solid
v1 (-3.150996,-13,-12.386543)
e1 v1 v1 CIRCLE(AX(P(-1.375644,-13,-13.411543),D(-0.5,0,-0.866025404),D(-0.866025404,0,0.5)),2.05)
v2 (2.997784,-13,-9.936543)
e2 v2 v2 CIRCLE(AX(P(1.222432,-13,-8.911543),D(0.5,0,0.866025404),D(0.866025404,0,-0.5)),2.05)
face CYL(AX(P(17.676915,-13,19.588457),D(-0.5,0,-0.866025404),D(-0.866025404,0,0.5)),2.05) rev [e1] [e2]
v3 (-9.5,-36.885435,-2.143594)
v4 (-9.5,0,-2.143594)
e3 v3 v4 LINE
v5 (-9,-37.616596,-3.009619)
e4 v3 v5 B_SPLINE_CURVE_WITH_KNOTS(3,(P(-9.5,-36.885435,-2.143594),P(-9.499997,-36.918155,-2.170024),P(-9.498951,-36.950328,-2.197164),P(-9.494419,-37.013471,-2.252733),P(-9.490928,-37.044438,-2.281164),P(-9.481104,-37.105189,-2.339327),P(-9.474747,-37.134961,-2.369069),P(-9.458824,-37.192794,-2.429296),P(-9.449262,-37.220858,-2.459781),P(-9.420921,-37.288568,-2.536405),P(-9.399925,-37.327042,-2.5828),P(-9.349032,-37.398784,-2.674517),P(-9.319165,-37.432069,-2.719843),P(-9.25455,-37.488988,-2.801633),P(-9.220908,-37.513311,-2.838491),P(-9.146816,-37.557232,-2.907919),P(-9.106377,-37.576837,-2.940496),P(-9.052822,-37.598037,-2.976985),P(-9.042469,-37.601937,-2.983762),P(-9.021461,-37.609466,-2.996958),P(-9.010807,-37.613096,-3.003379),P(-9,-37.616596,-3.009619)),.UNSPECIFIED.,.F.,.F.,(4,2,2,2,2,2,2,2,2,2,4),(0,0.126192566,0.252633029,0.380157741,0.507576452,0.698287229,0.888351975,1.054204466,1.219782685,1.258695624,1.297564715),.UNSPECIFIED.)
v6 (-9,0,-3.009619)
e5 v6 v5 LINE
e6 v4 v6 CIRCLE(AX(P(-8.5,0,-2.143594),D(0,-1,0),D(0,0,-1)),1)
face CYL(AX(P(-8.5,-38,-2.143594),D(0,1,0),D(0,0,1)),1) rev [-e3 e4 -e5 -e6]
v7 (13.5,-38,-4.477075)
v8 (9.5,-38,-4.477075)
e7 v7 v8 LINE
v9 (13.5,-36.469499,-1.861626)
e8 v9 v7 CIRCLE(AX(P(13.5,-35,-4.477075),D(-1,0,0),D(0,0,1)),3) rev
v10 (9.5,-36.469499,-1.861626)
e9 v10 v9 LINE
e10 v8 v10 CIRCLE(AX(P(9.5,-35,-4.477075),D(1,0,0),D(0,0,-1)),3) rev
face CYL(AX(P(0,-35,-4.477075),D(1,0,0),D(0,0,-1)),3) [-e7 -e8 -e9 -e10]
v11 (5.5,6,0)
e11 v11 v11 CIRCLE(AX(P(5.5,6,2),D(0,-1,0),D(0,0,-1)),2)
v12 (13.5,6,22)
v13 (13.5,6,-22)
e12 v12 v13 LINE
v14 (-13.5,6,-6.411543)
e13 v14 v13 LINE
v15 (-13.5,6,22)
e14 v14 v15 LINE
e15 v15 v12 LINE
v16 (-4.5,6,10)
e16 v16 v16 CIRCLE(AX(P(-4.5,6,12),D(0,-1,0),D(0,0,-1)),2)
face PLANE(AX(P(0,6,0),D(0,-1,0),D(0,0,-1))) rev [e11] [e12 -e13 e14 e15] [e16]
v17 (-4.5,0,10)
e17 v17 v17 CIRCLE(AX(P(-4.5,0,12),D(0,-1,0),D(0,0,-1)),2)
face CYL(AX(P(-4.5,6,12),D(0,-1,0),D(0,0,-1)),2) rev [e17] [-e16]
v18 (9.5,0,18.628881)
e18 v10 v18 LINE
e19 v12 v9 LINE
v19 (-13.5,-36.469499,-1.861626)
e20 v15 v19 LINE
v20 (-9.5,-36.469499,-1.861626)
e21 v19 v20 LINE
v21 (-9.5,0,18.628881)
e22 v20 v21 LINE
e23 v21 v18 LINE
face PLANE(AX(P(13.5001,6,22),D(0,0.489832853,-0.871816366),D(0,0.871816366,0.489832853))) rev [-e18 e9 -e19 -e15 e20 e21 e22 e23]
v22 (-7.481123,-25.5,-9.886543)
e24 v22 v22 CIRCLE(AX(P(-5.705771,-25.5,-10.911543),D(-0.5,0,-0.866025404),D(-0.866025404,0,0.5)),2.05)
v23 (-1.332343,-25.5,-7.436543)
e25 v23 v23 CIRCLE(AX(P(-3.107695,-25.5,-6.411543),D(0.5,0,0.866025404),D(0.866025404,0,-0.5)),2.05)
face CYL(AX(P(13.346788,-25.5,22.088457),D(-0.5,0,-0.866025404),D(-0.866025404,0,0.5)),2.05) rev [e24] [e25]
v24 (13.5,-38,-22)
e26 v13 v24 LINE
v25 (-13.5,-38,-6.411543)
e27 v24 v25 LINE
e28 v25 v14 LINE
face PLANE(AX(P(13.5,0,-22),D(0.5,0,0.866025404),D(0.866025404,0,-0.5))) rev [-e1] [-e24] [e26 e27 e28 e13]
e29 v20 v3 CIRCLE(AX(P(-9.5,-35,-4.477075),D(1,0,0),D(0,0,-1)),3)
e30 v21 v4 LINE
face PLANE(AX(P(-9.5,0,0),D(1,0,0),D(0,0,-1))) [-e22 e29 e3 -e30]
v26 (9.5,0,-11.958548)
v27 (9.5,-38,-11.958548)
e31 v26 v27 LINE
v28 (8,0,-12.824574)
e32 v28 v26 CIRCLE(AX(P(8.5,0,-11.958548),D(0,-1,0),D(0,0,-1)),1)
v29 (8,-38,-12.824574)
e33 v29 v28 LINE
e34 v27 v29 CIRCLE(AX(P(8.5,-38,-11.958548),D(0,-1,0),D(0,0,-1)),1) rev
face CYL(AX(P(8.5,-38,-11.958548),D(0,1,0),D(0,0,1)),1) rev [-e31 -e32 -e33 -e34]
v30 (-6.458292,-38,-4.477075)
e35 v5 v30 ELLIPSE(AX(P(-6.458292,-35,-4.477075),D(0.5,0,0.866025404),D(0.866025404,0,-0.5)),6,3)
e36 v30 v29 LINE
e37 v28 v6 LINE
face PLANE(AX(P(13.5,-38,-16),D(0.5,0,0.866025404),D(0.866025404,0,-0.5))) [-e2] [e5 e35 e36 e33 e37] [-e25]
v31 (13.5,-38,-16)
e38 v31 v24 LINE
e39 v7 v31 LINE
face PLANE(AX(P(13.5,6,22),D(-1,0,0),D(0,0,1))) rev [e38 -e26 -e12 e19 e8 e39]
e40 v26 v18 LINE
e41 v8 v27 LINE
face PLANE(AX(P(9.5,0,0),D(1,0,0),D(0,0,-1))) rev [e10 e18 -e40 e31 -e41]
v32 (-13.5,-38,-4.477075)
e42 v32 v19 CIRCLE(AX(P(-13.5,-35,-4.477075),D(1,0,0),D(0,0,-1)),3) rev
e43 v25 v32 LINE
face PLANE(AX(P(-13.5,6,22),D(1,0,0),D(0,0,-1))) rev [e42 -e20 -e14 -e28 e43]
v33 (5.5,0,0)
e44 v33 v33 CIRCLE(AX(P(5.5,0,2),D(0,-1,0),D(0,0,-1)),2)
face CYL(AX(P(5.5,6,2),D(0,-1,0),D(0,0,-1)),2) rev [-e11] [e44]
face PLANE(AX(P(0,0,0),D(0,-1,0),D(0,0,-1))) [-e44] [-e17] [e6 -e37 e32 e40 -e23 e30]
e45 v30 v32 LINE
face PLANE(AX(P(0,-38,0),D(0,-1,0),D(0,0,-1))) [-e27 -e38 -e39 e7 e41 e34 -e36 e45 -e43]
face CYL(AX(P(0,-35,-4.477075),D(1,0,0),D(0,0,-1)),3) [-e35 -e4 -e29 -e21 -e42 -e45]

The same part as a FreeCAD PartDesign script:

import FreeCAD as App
import Part
import Sketcher

V = App.Vector
Q = App.Units.Quantity


def edges_at(feature, points):
    """Names of the edges that pass closest to the given points."""
    edges = feature.Shape.Edges
    near = lambda p: min(range(len(edges)), key=lambda i: edges[i].distToShape(Part.Vertex(*p))[0])
    return sorted({f"Edge{near(p) + 1}" for p in points})


def add_polygon(sketch, points):
    """Adds a closed chain of lines whose ends are joined by coincident constraints."""
    first, n = sketch.GeometryCount, len(points)
    for a, b in zip(points, points[1:] + points[:1]):
        sketch.addGeometry(Part.LineSegment(App.Vector(*a, 0), App.Vector(*b, 0)), False)
    for i in range(n):
        sketch.addConstraint(Sketcher.Constraint("Coincident", first + i, 2, first + (i + 1) % n, 1))

doc = App.newDocument("Part")
params = doc.addObject("Spreadsheet::Sheet", "Params")
for row, (alias, value) in enumerate([
    ("sketch1_width", "27 mm"),
    ("sketch1_height", "44 mm"),
    ("pad1_length", "6 mm"),
    ("sketch2_width", "27 mm"),
    ("sketch3_height", "6 mm"),
    ("pad2_length", "44 mm"),
    ("sketch4_diameter", "4 mm"),
    ("sketch5_diameter", "4.1 mm"),
    ("sketch6_width", "38 mm"),
    ("sketch7_width", "38 mm"),
    ("sketch8_width", "38 mm"),
    ("sketch9_width", "38 mm"),
    ("sketch10_width", "44 mm"),
    ("fillet_radius", "1 mm"),
    ("fillet2_radius", "3 mm"),
], start=1):
    params.set(f"A{row}", alias)
    params.set(f"B{row}", "=" + value)
    params.setAlias(f"B{row}", alias)

body = doc.addObject("PartDesign::Body", "Body")

# Sketch on XZ plane
sketch1 = doc.addObject("Sketcher::SketchObject", "Sketch")
body.addObject(sketch1)
sketch1.AttachmentSupport = (doc.XZ_Plane, [""])
sketch1.MapMode = "FlatFace"
add_polygon(sketch1, [(-14, -22), (-14, 22), (14, 22), (14, -22)])  # lines 0-3
sketch1.addConstraint([
    Sketcher.Constraint("Vertical", 0),
    Sketcher.Constraint("Horizontal", 1),
    Sketcher.Constraint("Vertical", 2),
    Sketcher.Constraint("Horizontal", 3),
    Sketcher.Constraint("Symmetric", 0, 2, 2, 2, -1, 1),
    Sketcher.Constraint("DistanceX", 1, 1, 1, 2, Q("27 mm")),
    Sketcher.Constraint("DistanceY", 0, 1, 0, 2, Q("44 mm")),
])
sketch1.setExpression("Constraints[9]", "Params.sketch1_width")
sketch1.setExpression("Constraints[10]", "Params.sketch1_height")
pad1 = doc.addObject("PartDesign::Pad", "Pad")
body.addObject(pad1)
pad1.Profile = sketch1
pad1.setExpression("Length", "Params.pad1_length")
pad1.Reversed = True

# Sketch on XZ plane
sketch2 = doc.addObject("Sketcher::SketchObject", "Sketch001")
body.addObject(sketch2)
sketch2.AttachmentSupport = (doc.XZ_Plane, [""])
sketch2.MapMode = "FlatFace"
sketch2.AttachmentOffset = App.Placement(V(0, 0, -6), App.Rotation())
add_polygon(sketch2, [(-14, -6), (14, -22), (-14, -22)])  # lines 0-2
sketch2.addConstraint([
    Sketcher.Constraint("Horizontal", 1),
    Sketcher.Constraint("Vertical", 2),
    Sketcher.Constraint("DistanceX", 1, 2, 1, 1, Q("27 mm")),
    Sketcher.Constraint("Angle", 0, Q("-30 deg")),
    Sketcher.Constraint("DistanceY", 0, 2, -1, 1, Q("22 mm")),
    Sketcher.Constraint("DistanceX", -1, 1, 0, 2, Q("13.5 mm")),
])
sketch2.setExpression("Constraints[5]", "Params.sketch2_width")
pocket1 = doc.addObject("PartDesign::Pocket", "Pocket")
body.addObject(pocket1)
pocket1.Profile = sketch2
pocket1.Type = "ThroughAll"
pocket1.Reversed = True

# Sketch on XZ plane
sketch3 = doc.addObject("Sketcher::SketchObject", "Sketch002")
body.addObject(sketch3)
sketch3.AttachmentSupport = (doc.XZ_Plane, [""])
sketch3.MapMode = "FlatFace"
sketch3.AttachmentOffset = App.Placement(V(0, 0, -6), App.Rotation())
add_polygon(sketch3, [(14, -22), (-14, -6), (-14, 0), (14, -16)])  # lines 0-3
sketch3.addConstraint([
    Sketcher.Constraint("Vertical", 1),
    Sketcher.Constraint("Vertical", 3),
    Sketcher.Constraint("Parallel", 0, 2),
    Sketcher.Constraint("DistanceY", 1, 1, 1, 2, Q("6 mm")),
    Sketcher.Constraint("Angle", 0, Q("150 deg")),
    Sketcher.Constraint("DistanceY", 2, 2, -1, 1, Q("16 mm")),
    Sketcher.Constraint("DistanceX", 0, 2, 2, 2, Q("27 mm")),
    Sketcher.Constraint("DistanceX", 0, 2, -1, 1, Q("13.5 mm")),
])
sketch3.setExpression("Constraints[7]", "Params.sketch3_height")
pad2 = doc.addObject("PartDesign::Pad", "Pad001")
body.addObject(pad2)
pad2.Profile = sketch3
pad2.setExpression("Length", "Params.pad2_length")

# Sketch on XZ plane
sketch4 = doc.addObject("Sketcher::SketchObject", "Sketch003")
body.addObject(sketch4)
sketch4.AttachmentSupport = (doc.XZ_Plane, [""])
sketch4.MapMode = "FlatFace"
sketch4.addGeometry([
    Part.Circle(V(-4.5, 12, 0), V(0, 0, 1), 2),
    Part.Circle(V(5.5, 2, 0), V(0, 0, 1), 2),
], False)
sketch4.addConstraint([
    Sketcher.Constraint("Equal", 0, 1),
    Sketcher.Constraint("Diameter", 0, Q("4 mm")),
    Sketcher.Constraint("DistanceY", -1, 1, 0, 3, Q("12 mm")),
    Sketcher.Constraint("DistanceY", -1, 1, 1, 3, Q("2 mm")),
    Sketcher.Constraint("DistanceX", 0, 3, 1, 3, Q("10 mm")),
    Sketcher.Constraint("DistanceX", 0, 3, -1, 1, Q("4.5 mm")),
])
sketch4.setExpression("Constraints[1]", "Params.sketch4_diameter")
pocket2 = doc.addObject("PartDesign::Pocket", "Pocket001")
body.addObject(pocket2)
pocket2.Profile = sketch4
pocket2.Type = "ThroughAll"

# Sketch on an angled plane
sketch5 = doc.addObject("Sketcher::SketchObject", "Sketch004")
body.addObject(sketch5)
sketch5.Placement = App.Placement(V(-6.151279, 0, -10.654329), App.Rotation(V(-0.866025404, 0, 0.5), V(0, 1, 0), V(-0.5, 0, -0.866025404), "ZXY"))
sketch5.addGeometry([
    Part.Circle(V(-5.5, -13, 0), V(0, 0, 1), 2),
    Part.Circle(V(-0.5, -25.5, 0), V(0, 0, 1), 2),
], False)
sketch5.addConstraint([
    Sketcher.Constraint("Equal", 0, 1),
    Sketcher.Constraint("Diameter", 0, Q("4.1 mm")),
    Sketcher.Constraint("DistanceY", 0, 3, -1, 1, Q("13 mm")),
    Sketcher.Constraint("DistanceX", 0, 3, 1, 3, Q("5 mm")),
    Sketcher.Constraint("DistanceY", 1, 3, -1, 1, Q("25.5 mm")),
    Sketcher.Constraint("DistanceX", 0, 3, -1, 1, Q("5.514428 mm")),
])
sketch5.setExpression("Constraints[1]", "Params.sketch5_diameter")
pocket3 = doc.addObject("PartDesign::Pocket", "Pocket002")
body.addObject(pocket3)
pocket3.Profile = sketch5
pocket3.Type = "ThroughAll"

# Sketch on YZ plane
sketch6 = doc.addObject("Sketcher::SketchObject", "Sketch005")
body.addObject(sketch6)
sketch6.AttachmentSupport = (doc.YZ_Plane, [""])
sketch6.MapMode = "FlatFace"
sketch6.AttachmentOffset = App.Placement(V(0, 0, 9.5), App.Rotation())
add_polygon(sketch6, [(0, -14), (0, 22), (-38, 22), (-38, -14)])  # lines 0-3
sketch6.addConstraint([
    Sketcher.Constraint("Vertical", 0),
    Sketcher.Constraint("Horizontal", 1),
    Sketcher.Constraint("Vertical", 2),
    Sketcher.Constraint("Horizontal", 3),
    Sketcher.Constraint("PointOnObject", 0, 2, -2),
    Sketcher.Constraint("DistanceX", 1, 2, 1, 1, Q("38 mm")),
    Sketcher.Constraint("DistanceY", -1, 1, 0, 2, Q("22 mm")),
    Sketcher.Constraint("DistanceY", 0, 1, 0, 2, Q("35.690599 mm")),
])
sketch6.setExpression("Constraints[9]", "Params.sketch6_width")

# Sketch on YZ plane
sketch7 = doc.addObject("Sketcher::SketchObject", "Sketch006")
body.addObject(sketch7)
sketch7.AttachmentSupport = (doc.YZ_Plane, [""])
sketch7.MapMode = "FlatFace"
sketch7.AttachmentOffset = App.Placement(V(0, 0, 13.5), App.Rotation())
add_polygon(sketch7, [(0, -16), (0, 22), (-38, 22), (-38, -16)])  # lines 0-3
sketch7.addConstraint([
    Sketcher.Constraint("Vertical", 0),
    Sketcher.Constraint("Horizontal", 1),
    Sketcher.Constraint("Vertical", 2),
    Sketcher.Constraint("Horizontal", 3),
    Sketcher.Constraint("PointOnObject", 0, 2, -2),
    Sketcher.Constraint("Equal", 3, 0),
    Sketcher.Constraint("DistanceX", 1, 2, 1, 1, Q("38 mm")),
    Sketcher.Constraint("DistanceY", -1, 1, 0, 2, Q("22 mm")),
])
sketch7.setExpression("Constraints[10]", "Params.sketch7_width")

additiveloft = doc.addObject("PartDesign::AdditiveLoft", "AdditiveLoft")
body.addObject(additiveloft)
additiveloft.Profile = sketch6
additiveloft.Sections = [sketch7]

# Sketch on YZ plane
sketch8 = doc.addObject("Sketcher::SketchObject", "Sketch007")
body.addObject(sketch8)
sketch8.AttachmentSupport = (doc.YZ_Plane, [""])
sketch8.MapMode = "FlatFace"
sketch8.AttachmentOffset = App.Placement(V(0, 0, -9.5), App.Rotation())
add_polygon(sketch8, [(0, -3), (-38, -3), (-38, 22), (0, 22)])  # lines 0-3
sketch8.addConstraint([
    Sketcher.Constraint("Horizontal", 0),
    Sketcher.Constraint("Vertical", 1),
    Sketcher.Constraint("Horizontal", 2),
    Sketcher.Constraint("Vertical", 3),
    Sketcher.Constraint("PointOnObject", 2, 2, -2),
    Sketcher.Constraint("DistanceX", 0, 2, 0, 1, Q("38 mm")),
    Sketcher.Constraint("DistanceY", -1, 1, 1, 2, Q("22 mm")),
    Sketcher.Constraint("DistanceY", 1, 1, 1, 2, Q("24.720944 mm")),
])
sketch8.setExpression("Constraints[9]", "Params.sketch8_width")

# Sketch on YZ plane
sketch9 = doc.addObject("Sketcher::SketchObject", "Sketch008")
body.addObject(sketch9)
sketch9.AttachmentSupport = (doc.YZ_Plane, [""])
sketch9.MapMode = "FlatFace"
sketch9.AttachmentOffset = App.Placement(V(0, 0, -13.5), App.Rotation())
add_polygon(sketch9, [(0, 22), (0, 0), (-38, 0), (-38, 22)])  # lines 0-3
sketch9.addConstraint([
    Sketcher.Constraint("Vertical", 0),
    Sketcher.Constraint("Horizontal", 1),
    Sketcher.Constraint("Vertical", 2),
    Sketcher.Constraint("Horizontal", 3),
    Sketcher.Constraint("PointOnObject", 0, 2, -2),
    Sketcher.Constraint("DistanceX", 1, 2, 1, 1, Q("38 mm")),
    Sketcher.Constraint("DistanceY", -1, 1, 2, 2, Q("22 mm")),
    Sketcher.Constraint("DistanceY", 0, 2, 0, 1, Q("22.411543 mm")),
])
sketch9.setExpression("Constraints[9]", "Params.sketch9_width")

additiveloft2 = doc.addObject("PartDesign::AdditiveLoft", "AdditiveLoft001")
body.addObject(additiveloft2)
additiveloft2.Profile = sketch8
additiveloft2.Sections = [sketch9]

# Sketch on YZ plane
sketch10 = doc.addObject("Sketcher::SketchObject", "Sketch009")
body.addObject(sketch10)
sketch10.AttachmentSupport = (doc.YZ_Plane, [""])
sketch10.MapMode = "FlatFace"
sketch10.AttachmentOffset = App.Placement(V(0, 0, -13.5), App.Rotation())
add_polygon(sketch10, [(6, 22), (-38, -3), (-38, 22)])  # lines 0-2
sketch10.addConstraint([
    Sketcher.Constraint("Vertical", 1),
    Sketcher.Constraint("Horizontal", 2),
    Sketcher.Constraint("DistanceX", 2, 1, 2, 2, Q("44 mm")),
    Sketcher.Constraint("DistanceX", 0, 2, -1, 1, Q("38 mm")),
    Sketcher.Constraint("DistanceY", -1, 1, 1, 2, Q("22 mm")),
    Sketcher.Constraint("DistanceY", 1, 1, 1, 2, Q("24.721543 mm")),
])
sketch10.setExpression("Constraints[5]", "Params.sketch10_width")
pocket4 = doc.addObject("PartDesign::Pocket", "Pocket003")
body.addObject(pocket4)
pocket4.Profile = sketch10
pocket4.Type = "ThroughAll"
pocket4.Reversed = True
doc.recompute()

fillet = doc.addObject("PartDesign::Fillet", "Fillet")
body.addObject(fillet)
fillet.Base = (pocket4, edges_at(pocket4, [(9.5, -19, -13.691), (-9.5, -18.999, -2.721)]))
fillet.setExpression("Radius", "Params.fillet_radius")
doc.recompute()

fillet2 = doc.addObject("PartDesign::Fillet", "Fillet001")
body.addObject(fillet2)
fillet2.Base = (fillet, edges_at(fillet, [(-11.408, -38, -2.722), (11.5, -38, -2.722)]))
fillet2.setExpression("Radius", "Params.fillet2_radius")

doc.recompute()
